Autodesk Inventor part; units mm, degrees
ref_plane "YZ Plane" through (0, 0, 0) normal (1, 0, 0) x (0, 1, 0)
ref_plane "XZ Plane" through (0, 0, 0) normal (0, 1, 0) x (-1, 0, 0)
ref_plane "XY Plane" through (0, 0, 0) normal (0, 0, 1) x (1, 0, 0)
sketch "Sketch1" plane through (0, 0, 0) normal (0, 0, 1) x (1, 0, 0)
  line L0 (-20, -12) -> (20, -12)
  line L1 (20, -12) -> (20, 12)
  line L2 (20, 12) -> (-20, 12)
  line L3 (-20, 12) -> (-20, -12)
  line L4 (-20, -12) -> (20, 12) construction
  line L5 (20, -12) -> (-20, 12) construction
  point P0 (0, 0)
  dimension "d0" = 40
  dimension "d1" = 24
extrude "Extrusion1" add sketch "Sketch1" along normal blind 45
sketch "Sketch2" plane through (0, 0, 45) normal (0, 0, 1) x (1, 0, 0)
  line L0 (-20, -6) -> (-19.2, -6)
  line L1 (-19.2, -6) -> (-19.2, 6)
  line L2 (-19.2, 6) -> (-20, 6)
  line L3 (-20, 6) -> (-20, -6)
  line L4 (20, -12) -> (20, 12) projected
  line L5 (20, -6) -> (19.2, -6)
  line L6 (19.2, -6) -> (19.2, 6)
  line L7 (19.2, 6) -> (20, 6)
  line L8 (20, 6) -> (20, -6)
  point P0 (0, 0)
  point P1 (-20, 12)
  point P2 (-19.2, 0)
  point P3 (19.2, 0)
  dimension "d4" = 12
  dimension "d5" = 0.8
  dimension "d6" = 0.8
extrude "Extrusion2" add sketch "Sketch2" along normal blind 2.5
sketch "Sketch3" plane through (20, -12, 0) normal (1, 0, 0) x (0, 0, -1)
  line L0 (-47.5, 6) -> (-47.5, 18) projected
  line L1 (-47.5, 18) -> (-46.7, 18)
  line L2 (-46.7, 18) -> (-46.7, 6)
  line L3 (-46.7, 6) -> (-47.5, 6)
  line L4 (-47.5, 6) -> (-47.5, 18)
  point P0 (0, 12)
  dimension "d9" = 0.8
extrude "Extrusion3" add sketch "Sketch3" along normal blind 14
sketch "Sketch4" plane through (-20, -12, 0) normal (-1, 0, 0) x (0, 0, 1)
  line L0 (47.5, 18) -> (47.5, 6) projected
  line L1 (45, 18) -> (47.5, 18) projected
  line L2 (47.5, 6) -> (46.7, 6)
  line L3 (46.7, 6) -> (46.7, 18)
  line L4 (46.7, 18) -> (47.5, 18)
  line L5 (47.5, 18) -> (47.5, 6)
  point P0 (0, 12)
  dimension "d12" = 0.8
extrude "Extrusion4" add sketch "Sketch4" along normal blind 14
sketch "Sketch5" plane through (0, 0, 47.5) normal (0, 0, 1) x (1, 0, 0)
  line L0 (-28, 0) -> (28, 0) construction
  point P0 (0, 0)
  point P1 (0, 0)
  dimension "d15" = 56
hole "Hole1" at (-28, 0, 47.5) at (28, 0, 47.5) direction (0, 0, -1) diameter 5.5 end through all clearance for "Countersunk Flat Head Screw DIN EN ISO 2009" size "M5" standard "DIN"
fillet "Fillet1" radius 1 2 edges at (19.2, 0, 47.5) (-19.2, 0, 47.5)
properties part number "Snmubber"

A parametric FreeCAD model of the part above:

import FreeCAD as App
import Part
import Sketcher
Q = App.Units.Quantity


def edges_at(feature, points):
    """Names of the edges that pass closest to the given points."""
    edges = feature.Shape.Edges
    near = lambda p: min(range(len(edges)), key=lambda i: edges[i].distToShape(Part.Vertex(*p))[0])
    return sorted({f"Edge{near(p) + 1}" for p in points})

doc = App.newDocument("Part")
body = doc.addObject("PartDesign::Body", "Body")

# Sketch on XY plane
sketch1 = doc.addObject("Sketcher::SketchObject", "Sketch")
body.addObject(sketch1)
sketch1.AttachmentSupport = (doc.XY_Plane, [""])
sketch1.MapMode = "FlatFace"
sketch1.addGeometry([
    Part.LineSegment(App.Vector(-20, 12, 0), App.Vector(-20, -12, 0)),
    Part.LineSegment(App.Vector(-20, -12, 0), App.Vector(20, -12, 0)),
    Part.LineSegment(App.Vector(20, -12, 0), App.Vector(20, 12, 0)),
    Part.LineSegment(App.Vector(20, 12, 0), App.Vector(-20, 12, 0)),
], False)
sketch1.addConstraint([
    Sketcher.Constraint("Coincident", 0, 2, 1, 1),
    Sketcher.Constraint("Coincident", 1, 2, 2, 1),
    Sketcher.Constraint("Coincident", 2, 2, 3, 1),
    Sketcher.Constraint("Coincident", 3, 2, 0, 1),
    Sketcher.Constraint("Vertical", 0),
    Sketcher.Constraint("Horizontal", 1),
    Sketcher.Constraint("Vertical", 2),
    Sketcher.Constraint("Horizontal", 3),
    Sketcher.Constraint("Symmetric", 0, 2, 2, 2, -1, 1),
    Sketcher.Constraint("DistanceX", 1, 1, 1, 2, Q("40 mm")),
    Sketcher.Constraint("DistanceY", 0, 2, 0, 1, Q("24 mm")),
])
pad1 = doc.addObject("PartDesign::Pad", "Pad")
body.addObject(pad1)
pad1.Profile = sketch1
pad1.Length = 45

# Sketch on XY plane
sketch2 = doc.addObject("Sketcher::SketchObject", "Sketch001")
body.addObject(sketch2)
sketch2.AttachmentSupport = (doc.XY_Plane, [""])
sketch2.MapMode = "FlatFace"
sketch2.AttachmentOffset = App.Placement(App.Vector(0, 0, 45), App.Rotation())
sketch2.addGeometry([
    Part.LineSegment(App.Vector(-20, 6, 0), App.Vector(-20, -6, 0)),  # 0
    Part.LineSegment(App.Vector(-20, -6, 0), App.Vector(-19.2, -6, 0)),  # 1
    Part.LineSegment(App.Vector(-19.2, -6, 0), App.Vector(-19.2, 6, 0)),  # 2
    Part.LineSegment(App.Vector(-19.2, 6, 0), App.Vector(-20, 6, 0)),  # 3
    Part.LineSegment(App.Vector(19.2, -6, 0), App.Vector(20, -6, 0)),  # 4
    Part.LineSegment(App.Vector(20, -6, 0), App.Vector(20, 6, 0)),  # 5
    Part.LineSegment(App.Vector(20, 6, 0), App.Vector(19.2, 6, 0)),  # 6
    Part.LineSegment(App.Vector(19.2, 6, 0), App.Vector(19.2, -6, 0)),  # 7
], False)
sketch2.addConstraint([
    Sketcher.Constraint("Coincident", 0, 2, 1, 1),
    Sketcher.Constraint("Coincident", 1, 2, 2, 1),
    Sketcher.Constraint("Coincident", 2, 2, 3, 1),
    Sketcher.Constraint("Coincident", 3, 2, 0, 1),
    Sketcher.Constraint("Coincident", 4, 2, 5, 1),
    Sketcher.Constraint("Coincident", 5, 2, 6, 1),
    Sketcher.Constraint("Coincident", 6, 2, 7, 1),
    Sketcher.Constraint("Coincident", 7, 2, 4, 1),
    Sketcher.Constraint("Vertical", 0),
    Sketcher.Constraint("Horizontal", 1),
    Sketcher.Constraint("Vertical", 2),
    Sketcher.Constraint("Horizontal", 3),
    Sketcher.Constraint("Horizontal", 4),
    Sketcher.Constraint("Vertical", 5),
    Sketcher.Constraint("Horizontal", 6),
    Sketcher.Constraint("Vertical", 7),
    Sketcher.Constraint("Symmetric", 3, 2, 4, 2, -1, 1),
    Sketcher.Constraint("Symmetric", 1, 2, 6, 2, -1, 1),
    Sketcher.Constraint("Horizontal", 1, 2, 4, 2),
    Sketcher.Constraint("DistanceY", 0, 2, 0, 1, Q("12 mm")),
    Sketcher.Constraint("DistanceX", 1, 1, 1, 2, Q("0.8 mm")),
    Sketcher.Constraint("DistanceX", 0, 2, -1, 1, Q("20 mm")),
])
pad2 = doc.addObject("PartDesign::Pad", "Pad001")
body.addObject(pad2)
pad2.Profile = sketch2
pad2.Length = 2.5

# Sketch on YZ plane
sketch3 = doc.addObject("Sketcher::SketchObject", "Sketch002")
body.addObject(sketch3)
sketch3.AttachmentSupport = (doc.YZ_Plane, [""])
sketch3.MapMode = "FlatFace"
sketch3.AttachmentOffset = App.Placement(App.Vector(0, 0, 20), App.Rotation())
sketch3.addGeometry([
    Part.LineSegment(App.Vector(6, 47.5, 0), App.Vector(-6, 47.5, 0)),
    Part.LineSegment(App.Vector(-6, 47.5, 0), App.Vector(-6, 46.7, 0)),
    Part.LineSegment(App.Vector(-6, 46.7, 0), App.Vector(6, 46.7, 0)),
    Part.LineSegment(App.Vector(6, 46.7, 0), App.Vector(6, 47.5, 0)),
], False)
sketch3.addConstraint([
    Sketcher.Constraint("Coincident", 0, 2, 1, 1),
    Sketcher.Constraint("Coincident", 1, 2, 2, 1),
    Sketcher.Constraint("Coincident", 2, 2, 3, 1),
    Sketcher.Constraint("Coincident", 3, 2, 0, 1),
    Sketcher.Constraint("Horizontal", 0),
    Sketcher.Constraint("Vertical", 1),
    Sketcher.Constraint("Horizontal", 2),
    Sketcher.Constraint("Vertical", 3),
    Sketcher.Constraint("DistanceY", 1, 2, 1, 1, Q("0.8 mm")),
    Sketcher.Constraint("DistanceX", 0, 2, 0, 1, Q("12 mm")),
    Sketcher.Constraint("DistanceX", 0, 2, -1, 1, Q("6 mm")),
    Sketcher.Constraint("DistanceY", -1, 1, 0, 2, Q("47.5 mm")),
])
pad3 = doc.addObject("PartDesign::Pad", "Pad002")
body.addObject(pad3)
pad3.Profile = sketch3
pad3.Length = 14

# Sketch on YZ plane
sketch4 = doc.addObject("Sketcher::SketchObject", "Sketch003")
body.addObject(sketch4)
sketch4.AttachmentSupport = (doc.YZ_Plane, [""])
sketch4.MapMode = "FlatFace"
sketch4.AttachmentOffset = App.Placement(App.Vector(0, 0, -20), App.Rotation())
sketch4.addGeometry([
    Part.LineSegment(App.Vector(-6, 47.5, 0), App.Vector(6, 47.5, 0)),
    Part.LineSegment(App.Vector(6, 47.5, 0), App.Vector(6, 46.7, 0)),
    Part.LineSegment(App.Vector(6, 46.7, 0), App.Vector(-6, 46.7, 0)),
    Part.LineSegment(App.Vector(-6, 46.7, 0), App.Vector(-6, 47.5, 0)),
], False)
sketch4.addConstraint([
    Sketcher.Constraint("Coincident", 0, 2, 1, 1),
    Sketcher.Constraint("Coincident", 1, 2, 2, 1),
    Sketcher.Constraint("Coincident", 2, 2, 3, 1),
    Sketcher.Constraint("Coincident", 3, 2, 0, 1),
    Sketcher.Constraint("Horizontal", 0),
    Sketcher.Constraint("Vertical", 1),
    Sketcher.Constraint("Horizontal", 2),
    Sketcher.Constraint("Vertical", 3),
    Sketcher.Constraint("DistanceY", 1, 2, 1, 1, Q("0.8 mm")),
    Sketcher.Constraint("DistanceX", 0, 1, 0, 2, Q("12 mm")),
    Sketcher.Constraint("DistanceX", -1, 1, 0, 2, Q("6 mm")),
    Sketcher.Constraint("DistanceY", -1, 1, 0, 2, Q("47.5 mm")),
])
pad4 = doc.addObject("PartDesign::Pad", "Pad003")
body.addObject(pad4)
pad4.Profile = sketch4
pad4.Length = 14
pad4.Reversed = True

# Sketch on XY plane
sketch5 = doc.addObject("Sketcher::SketchObject", "Sketch004")
body.addObject(sketch5)
sketch5.AttachmentSupport = (doc.XY_Plane, [""])
sketch5.MapMode = "FlatFace"
sketch5.AttachmentOffset = App.Placement(App.Vector(0, 0, 47.5), App.Rotation())
sketch5.addGeometry([
    Part.Circle(App.Vector(-28, 0, 0), App.Vector(0, 0, 1), 2.8),
    Part.Circle(App.Vector(28, 0, 0), App.Vector(0, 0, 1), 2.8),
], False)
sketch5.addConstraint([
    Sketcher.Constraint("Equal", 0, 1),
    Sketcher.Constraint("Symmetric", 0, 3, 1, 3, -1, 1),
    Sketcher.Constraint("PointOnObject", 0, 3, -1),
    Sketcher.Constraint("Diameter", 0, Q("5.5 mm")),
    Sketcher.Constraint("DistanceX", 0, 3, -1, 1, Q("28 mm")),
])
doc.recompute()
hole = doc.addObject("PartDesign::Hole", "Hole")
body.addObject(hole)
hole.Profile = sketch5
hole.ThreadType = "None"
hole.Diameter = 5.5
hole.DepthType = "ThroughAll"
doc.recompute()

fillet = doc.addObject("PartDesign::Fillet", "Fillet")
body.addObject(fillet)
fillet.Base = (hole, edges_at(hole, [(19.2, 0, 47.5), (-19.2, 0, 47.5)]))
fillet.Radius = 1

doc.recompute()
